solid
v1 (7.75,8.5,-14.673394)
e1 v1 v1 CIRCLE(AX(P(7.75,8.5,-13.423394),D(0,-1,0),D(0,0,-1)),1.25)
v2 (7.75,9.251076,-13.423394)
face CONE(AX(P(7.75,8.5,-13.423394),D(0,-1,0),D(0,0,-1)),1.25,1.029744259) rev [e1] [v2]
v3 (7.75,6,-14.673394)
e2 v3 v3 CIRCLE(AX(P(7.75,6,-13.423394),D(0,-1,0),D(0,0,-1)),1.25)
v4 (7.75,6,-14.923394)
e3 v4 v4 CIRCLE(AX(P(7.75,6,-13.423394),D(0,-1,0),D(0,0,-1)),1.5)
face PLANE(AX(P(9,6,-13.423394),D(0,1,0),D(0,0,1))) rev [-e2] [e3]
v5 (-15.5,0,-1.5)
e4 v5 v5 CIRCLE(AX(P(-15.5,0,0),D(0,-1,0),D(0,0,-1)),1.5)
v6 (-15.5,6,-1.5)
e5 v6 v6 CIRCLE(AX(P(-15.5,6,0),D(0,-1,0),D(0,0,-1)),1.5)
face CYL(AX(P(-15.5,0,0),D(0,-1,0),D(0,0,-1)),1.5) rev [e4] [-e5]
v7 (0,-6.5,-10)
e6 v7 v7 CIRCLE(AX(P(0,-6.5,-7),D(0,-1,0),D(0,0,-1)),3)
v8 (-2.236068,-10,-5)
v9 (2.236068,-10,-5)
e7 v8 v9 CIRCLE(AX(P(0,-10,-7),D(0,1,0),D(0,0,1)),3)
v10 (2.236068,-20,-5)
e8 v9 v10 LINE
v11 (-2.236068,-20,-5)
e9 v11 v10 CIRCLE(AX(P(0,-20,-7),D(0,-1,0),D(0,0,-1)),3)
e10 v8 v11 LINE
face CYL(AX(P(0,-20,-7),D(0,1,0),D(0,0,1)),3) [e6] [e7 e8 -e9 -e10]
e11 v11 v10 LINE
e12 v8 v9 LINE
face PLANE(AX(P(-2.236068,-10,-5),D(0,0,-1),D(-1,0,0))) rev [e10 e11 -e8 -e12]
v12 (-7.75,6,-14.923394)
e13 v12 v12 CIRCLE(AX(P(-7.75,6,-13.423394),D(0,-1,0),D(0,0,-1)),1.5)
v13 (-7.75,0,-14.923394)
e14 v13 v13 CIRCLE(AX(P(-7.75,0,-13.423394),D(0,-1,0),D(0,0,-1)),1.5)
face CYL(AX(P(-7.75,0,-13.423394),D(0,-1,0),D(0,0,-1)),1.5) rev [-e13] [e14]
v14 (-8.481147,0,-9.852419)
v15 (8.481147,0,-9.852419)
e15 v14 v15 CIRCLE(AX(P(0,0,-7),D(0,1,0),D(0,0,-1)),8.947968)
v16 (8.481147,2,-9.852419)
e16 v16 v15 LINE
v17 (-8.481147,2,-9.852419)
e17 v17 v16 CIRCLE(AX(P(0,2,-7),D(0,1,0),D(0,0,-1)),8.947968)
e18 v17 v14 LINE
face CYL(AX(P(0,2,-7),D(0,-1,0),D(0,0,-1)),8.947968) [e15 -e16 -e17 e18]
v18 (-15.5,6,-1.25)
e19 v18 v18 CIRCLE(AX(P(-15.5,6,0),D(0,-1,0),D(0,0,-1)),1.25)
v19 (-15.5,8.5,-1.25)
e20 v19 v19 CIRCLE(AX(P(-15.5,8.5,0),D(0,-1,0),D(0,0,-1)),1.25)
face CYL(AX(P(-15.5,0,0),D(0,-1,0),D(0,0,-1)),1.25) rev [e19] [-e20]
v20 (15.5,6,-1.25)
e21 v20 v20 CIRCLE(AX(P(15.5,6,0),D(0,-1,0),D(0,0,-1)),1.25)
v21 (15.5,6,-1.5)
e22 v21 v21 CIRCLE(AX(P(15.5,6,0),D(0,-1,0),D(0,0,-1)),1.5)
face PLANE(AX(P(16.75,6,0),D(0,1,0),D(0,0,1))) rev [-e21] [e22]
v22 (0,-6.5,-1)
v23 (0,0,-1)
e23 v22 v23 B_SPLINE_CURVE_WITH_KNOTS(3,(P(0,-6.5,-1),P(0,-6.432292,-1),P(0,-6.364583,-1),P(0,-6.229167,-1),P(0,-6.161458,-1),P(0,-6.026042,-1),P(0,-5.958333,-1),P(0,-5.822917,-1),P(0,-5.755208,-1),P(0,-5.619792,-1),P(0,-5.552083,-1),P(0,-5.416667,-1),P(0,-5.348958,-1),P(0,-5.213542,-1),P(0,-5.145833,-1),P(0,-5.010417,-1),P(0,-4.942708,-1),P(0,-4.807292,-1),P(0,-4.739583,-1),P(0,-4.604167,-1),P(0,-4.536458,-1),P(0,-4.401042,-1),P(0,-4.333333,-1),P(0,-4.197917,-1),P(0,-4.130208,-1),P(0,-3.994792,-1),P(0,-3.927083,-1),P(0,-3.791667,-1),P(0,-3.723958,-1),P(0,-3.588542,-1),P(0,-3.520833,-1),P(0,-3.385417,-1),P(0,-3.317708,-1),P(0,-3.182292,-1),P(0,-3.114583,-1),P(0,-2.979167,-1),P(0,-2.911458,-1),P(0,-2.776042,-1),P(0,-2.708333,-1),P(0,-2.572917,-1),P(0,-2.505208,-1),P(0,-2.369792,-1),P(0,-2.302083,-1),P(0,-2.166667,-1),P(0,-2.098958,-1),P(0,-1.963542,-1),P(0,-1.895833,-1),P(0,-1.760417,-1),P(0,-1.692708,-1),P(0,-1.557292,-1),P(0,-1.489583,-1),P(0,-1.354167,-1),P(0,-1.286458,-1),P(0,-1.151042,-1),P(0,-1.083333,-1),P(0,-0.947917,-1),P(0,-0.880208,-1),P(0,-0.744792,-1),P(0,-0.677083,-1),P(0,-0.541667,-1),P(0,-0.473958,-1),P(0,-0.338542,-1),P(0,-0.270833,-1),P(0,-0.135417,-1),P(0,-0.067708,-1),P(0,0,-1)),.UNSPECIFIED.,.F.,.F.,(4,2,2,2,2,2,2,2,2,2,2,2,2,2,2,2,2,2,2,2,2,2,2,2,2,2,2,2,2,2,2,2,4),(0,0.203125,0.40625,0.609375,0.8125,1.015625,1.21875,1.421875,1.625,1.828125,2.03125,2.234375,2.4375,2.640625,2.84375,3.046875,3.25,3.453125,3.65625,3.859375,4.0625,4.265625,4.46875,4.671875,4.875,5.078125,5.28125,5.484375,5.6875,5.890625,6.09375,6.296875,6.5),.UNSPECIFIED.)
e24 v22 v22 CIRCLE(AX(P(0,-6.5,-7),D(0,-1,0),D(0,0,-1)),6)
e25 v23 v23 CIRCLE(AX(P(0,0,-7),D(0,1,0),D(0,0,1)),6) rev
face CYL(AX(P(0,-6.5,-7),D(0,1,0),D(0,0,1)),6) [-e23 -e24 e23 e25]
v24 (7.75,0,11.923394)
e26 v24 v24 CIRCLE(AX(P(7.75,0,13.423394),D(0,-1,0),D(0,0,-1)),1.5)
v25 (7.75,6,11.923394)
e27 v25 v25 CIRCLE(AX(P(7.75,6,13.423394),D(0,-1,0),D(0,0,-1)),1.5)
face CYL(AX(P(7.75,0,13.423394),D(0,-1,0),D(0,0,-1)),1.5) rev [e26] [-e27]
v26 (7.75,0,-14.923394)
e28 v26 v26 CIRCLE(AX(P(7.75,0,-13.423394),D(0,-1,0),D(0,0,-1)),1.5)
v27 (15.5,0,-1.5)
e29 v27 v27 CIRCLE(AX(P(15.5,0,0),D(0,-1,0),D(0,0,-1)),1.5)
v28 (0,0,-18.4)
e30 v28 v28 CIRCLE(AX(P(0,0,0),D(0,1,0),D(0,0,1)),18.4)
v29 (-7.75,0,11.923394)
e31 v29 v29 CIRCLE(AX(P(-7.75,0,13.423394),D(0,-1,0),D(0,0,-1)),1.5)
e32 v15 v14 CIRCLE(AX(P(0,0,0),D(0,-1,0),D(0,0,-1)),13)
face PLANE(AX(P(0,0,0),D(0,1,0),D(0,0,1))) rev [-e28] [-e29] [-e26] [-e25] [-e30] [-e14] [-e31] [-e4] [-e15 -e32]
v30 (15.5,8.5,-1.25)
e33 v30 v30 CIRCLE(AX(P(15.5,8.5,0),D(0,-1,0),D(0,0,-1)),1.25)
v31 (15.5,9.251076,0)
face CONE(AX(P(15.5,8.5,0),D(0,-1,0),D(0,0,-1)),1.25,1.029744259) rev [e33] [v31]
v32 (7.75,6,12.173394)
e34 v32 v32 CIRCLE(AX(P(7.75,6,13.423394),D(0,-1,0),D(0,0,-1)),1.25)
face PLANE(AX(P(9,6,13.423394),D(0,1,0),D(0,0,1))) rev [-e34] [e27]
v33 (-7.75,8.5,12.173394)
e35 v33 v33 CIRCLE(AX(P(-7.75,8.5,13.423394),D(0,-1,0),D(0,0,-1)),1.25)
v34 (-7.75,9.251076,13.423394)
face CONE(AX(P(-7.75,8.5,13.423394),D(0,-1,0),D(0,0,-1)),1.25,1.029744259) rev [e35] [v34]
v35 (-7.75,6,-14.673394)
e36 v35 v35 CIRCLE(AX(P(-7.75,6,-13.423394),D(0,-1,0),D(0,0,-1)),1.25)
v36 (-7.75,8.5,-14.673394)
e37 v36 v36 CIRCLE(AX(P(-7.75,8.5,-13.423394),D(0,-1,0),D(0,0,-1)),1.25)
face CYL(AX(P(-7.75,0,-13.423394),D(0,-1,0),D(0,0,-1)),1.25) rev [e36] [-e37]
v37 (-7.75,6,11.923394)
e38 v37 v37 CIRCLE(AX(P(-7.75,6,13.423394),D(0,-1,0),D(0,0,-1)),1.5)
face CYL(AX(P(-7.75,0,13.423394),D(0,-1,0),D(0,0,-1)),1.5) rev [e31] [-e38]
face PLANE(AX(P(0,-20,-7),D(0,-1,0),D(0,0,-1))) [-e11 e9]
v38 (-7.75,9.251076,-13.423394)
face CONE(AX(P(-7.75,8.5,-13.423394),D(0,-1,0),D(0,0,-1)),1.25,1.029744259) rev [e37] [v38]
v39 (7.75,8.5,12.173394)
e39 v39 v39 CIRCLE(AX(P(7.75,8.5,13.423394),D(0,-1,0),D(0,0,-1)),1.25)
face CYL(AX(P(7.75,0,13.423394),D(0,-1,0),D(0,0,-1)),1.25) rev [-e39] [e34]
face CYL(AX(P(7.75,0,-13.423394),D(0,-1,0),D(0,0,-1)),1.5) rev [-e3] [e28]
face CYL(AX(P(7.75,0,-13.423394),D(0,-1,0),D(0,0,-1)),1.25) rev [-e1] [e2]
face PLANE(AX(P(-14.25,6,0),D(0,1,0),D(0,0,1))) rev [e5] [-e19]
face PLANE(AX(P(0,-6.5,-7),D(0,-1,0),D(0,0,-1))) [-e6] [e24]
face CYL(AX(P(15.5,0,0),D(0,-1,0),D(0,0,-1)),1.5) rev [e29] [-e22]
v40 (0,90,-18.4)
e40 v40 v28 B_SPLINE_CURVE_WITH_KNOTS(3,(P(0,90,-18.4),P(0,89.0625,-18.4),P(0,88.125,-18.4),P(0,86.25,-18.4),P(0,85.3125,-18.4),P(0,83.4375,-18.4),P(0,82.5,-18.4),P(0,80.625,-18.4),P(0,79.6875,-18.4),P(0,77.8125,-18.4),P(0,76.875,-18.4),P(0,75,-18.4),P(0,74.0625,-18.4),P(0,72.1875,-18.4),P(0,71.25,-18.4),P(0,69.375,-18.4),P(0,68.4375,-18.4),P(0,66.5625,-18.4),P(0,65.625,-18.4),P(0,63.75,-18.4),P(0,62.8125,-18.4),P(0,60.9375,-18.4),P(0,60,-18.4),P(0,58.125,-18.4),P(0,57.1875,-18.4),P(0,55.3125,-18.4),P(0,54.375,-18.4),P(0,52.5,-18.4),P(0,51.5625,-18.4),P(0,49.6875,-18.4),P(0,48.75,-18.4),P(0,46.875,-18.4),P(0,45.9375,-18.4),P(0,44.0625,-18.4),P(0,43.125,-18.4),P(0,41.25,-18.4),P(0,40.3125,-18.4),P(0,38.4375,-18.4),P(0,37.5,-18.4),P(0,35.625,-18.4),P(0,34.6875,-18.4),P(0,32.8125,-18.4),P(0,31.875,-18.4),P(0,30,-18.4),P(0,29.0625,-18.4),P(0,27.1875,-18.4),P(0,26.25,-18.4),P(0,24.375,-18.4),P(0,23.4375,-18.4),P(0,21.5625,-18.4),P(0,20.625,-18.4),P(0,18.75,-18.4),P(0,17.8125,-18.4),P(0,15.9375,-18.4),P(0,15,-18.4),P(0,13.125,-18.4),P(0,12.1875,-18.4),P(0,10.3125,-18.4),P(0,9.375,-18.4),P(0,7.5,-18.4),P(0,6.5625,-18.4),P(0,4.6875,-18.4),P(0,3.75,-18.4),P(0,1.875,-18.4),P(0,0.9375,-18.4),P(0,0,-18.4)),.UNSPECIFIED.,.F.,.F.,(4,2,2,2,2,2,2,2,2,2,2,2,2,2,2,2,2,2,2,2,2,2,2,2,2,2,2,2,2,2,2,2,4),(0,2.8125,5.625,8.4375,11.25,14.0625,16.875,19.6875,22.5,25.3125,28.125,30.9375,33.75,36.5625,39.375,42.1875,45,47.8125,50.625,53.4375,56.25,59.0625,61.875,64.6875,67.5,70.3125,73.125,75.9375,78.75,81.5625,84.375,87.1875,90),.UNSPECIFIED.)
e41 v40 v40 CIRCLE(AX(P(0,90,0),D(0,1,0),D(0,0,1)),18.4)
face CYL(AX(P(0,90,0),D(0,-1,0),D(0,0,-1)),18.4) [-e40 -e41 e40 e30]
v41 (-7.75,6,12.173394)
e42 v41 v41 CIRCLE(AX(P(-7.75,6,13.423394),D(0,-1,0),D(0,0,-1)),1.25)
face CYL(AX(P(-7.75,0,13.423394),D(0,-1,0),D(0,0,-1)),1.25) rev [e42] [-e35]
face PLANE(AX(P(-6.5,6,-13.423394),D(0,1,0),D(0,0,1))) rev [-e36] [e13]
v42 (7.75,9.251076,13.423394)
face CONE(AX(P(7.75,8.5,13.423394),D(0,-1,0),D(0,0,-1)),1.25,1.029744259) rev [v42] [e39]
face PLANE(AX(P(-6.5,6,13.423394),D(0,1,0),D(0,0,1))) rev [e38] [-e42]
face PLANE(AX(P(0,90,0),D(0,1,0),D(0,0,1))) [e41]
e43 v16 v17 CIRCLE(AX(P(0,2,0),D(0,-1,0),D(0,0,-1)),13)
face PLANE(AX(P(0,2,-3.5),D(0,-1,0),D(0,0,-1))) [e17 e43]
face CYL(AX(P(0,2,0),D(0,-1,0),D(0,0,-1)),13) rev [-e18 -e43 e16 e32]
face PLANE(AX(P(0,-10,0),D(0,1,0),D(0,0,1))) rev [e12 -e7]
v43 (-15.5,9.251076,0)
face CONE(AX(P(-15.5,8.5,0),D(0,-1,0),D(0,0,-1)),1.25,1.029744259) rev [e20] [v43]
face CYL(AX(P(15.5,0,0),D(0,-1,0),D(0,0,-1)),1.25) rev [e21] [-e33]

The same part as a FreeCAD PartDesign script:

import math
import FreeCAD as App
import Part
import Sketcher
Q = App.Units.Quantity


def add_polygon(sketch, points):
    """Adds a closed chain of lines whose ends are joined by coincident constraints."""
    first, n = sketch.GeometryCount, len(points)
    for a, b in zip(points, points[1:] + points[:1]):
        sketch.addGeometry(Part.LineSegment(App.Vector(*a, 0), App.Vector(*b, 0)), False)
    for i in range(n):
        sketch.addConstraint(Sketcher.Constraint("Coincident", first + i, 2, first + (i + 1) % n, 1))

doc = App.newDocument("Part")
body = doc.addObject("PartDesign::Body", "Body")

# Sketch on XZ plane
sketch1 = body.newObject("Sketcher::SketchObject", "Sketch")
sketch1.AttachmentSupport = (doc.getObject("XZ_Plane"), [""])
sketch1.MapMode = "FlatFace"
sketch1.addGeometry(Part.Circle(App.Vector(0, 0, 0), App.Vector(0, 0, 1), 18), False)
sketch1.addConstraint(Sketcher.Constraint("Coincident", 0, 3, -1, 1))
sketch1.addConstraint(Sketcher.Constraint("Diameter", 0, Q("36.8 mm")))
pad1 = body.newObject("PartDesign::Pad", "Pad")
pad1.Profile = sketch1
pad1.Length = 90
pad1.Reversed = True

# Sketch on XZ plane
sketch2 = body.newObject("Sketcher::SketchObject", "Sketch001")
sketch2.AttachmentSupport = (doc.getObject("XZ_Plane"), [""])
sketch2.MapMode = "FlatFace"
sketch2.addGeometry(Part.Circle(App.Vector(0, -7, 0), App.Vector(0, 0, 1), 3), False)
sketch2.addConstraint(Sketcher.Constraint("PointOnObject", 0, 3, -2))
sketch2.addConstraint(Sketcher.Constraint("Diameter", 0, Q("6 mm")))
sketch2.addConstraint(Sketcher.Constraint("DistanceY", 0, 3, -1, 1, Q("7 mm")))
pad2 = body.newObject("PartDesign::Pad", "Pad001")
pad2.Profile = sketch2
pad2.Length = 20

# Sketch on XZ plane
sketch3 = body.newObject("Sketcher::SketchObject", "Sketch002")
sketch3.AttachmentSupport = (doc.getObject("XZ_Plane"), [""])
sketch3.MapMode = "FlatFace"
sketch3.addGeometry(Part.Circle(App.Vector(7.8, 13.4, 0), App.Vector(0, 0, 1), 1.2), False)
sketch3.addGeometry(Part.Circle(App.Vector(15.5, 0, 0), App.Vector(0, 0, 1), 1.2), False)
sketch3.addGeometry(Part.Circle(App.Vector(7.8, -13.4, 0), App.Vector(0, 0, 1), 1.2), False)
sketch3.addGeometry(Part.Circle(App.Vector(-7.8, -13.4, 0), App.Vector(0, 0, 1), 1.2), False)
sketch3.addGeometry(Part.Circle(App.Vector(-15.5, 0, 0), App.Vector(0, 0, 1), 1.2), False)
sketch3.addGeometry(Part.Circle(App.Vector(-7.8, 13.4, 0), App.Vector(0, 0, 1), 1.2), False)
sketch3.addConstraint(Sketcher.Constraint("Equal", 0, 1))
sketch3.addConstraint(Sketcher.Constraint("Equal", 1, 2))
sketch3.addConstraint(Sketcher.Constraint("Equal", 2, 3))
sketch3.addConstraint(Sketcher.Constraint("Equal", 3, 4))
sketch3.addConstraint(Sketcher.Constraint("Equal", 4, 5))
sketch3.addConstraint(Sketcher.Constraint("Symmetric", 0, 3, 3, 3, -1, 1))
sketch3.addConstraint(Sketcher.Constraint("Symmetric", 1, 3, 4, 3, -1, 1))
sketch3.addConstraint(Sketcher.Constraint("Symmetric", 2, 3, 5, 3, -1, 1))
sketch3.addConstraint(Sketcher.Constraint("Symmetric", 2, 3, 3, 3, -2))
sketch3.addConstraint(Sketcher.Constraint("PointOnObject", 1, 3, -1))
sketch3.addConstraint(Sketcher.Constraint("Diameter", 0, Q("2.5 mm")))
sketch3.addConstraint(Sketcher.Constraint("DistanceX", 4, 3, 1, 3, Q("31 mm")))
sketch3.addConstraint(Sketcher.Constraint("DistanceX", 3, 3, 2, 3, Q("15.5 mm")))
sketch3.addConstraint(Sketcher.Constraint("DistanceY", -1, 1, 0, 3, Q("13.423394 mm")))
doc.recompute()
hole = body.newObject("PartDesign::Hole", "Hole")
hole.Profile = sketch3
hole.ThreadType = "None"
hole.Diameter = 2.5
hole.DepthType = "Dimension"
hole.Depth = 8.5
hole.DrillPoint = "Angled"
hole.DrillPointAngle = 118
hole.HoleCutType = "Counterbore"
hole.HoleCutDiameter = 3
hole.HoleCutDepth = 6

# Sketch on XZ plane
sketch4 = body.newObject("Sketcher::SketchObject", "Sketch003")
sketch4.AttachmentSupport = (doc.getObject("XZ_Plane"), [""])
sketch4.MapMode = "FlatFace"
sketch4.addGeometry(Part.Circle(App.Vector(0, -7, 0), App.Vector(0, 0, 1), 6), False)
sketch4.addConstraint(Sketcher.Constraint("PointOnObject", 0, 3, -2))
sketch4.addConstraint(Sketcher.Constraint("Diameter", 0, Q("12 mm")))
sketch4.addConstraint(Sketcher.Constraint("DistanceY", 0, 3, -1, 1, Q("7 mm")))
pad3 = body.newObject("PartDesign::Pad", "Pad002")
pad3.Profile = sketch4
pad3.Length = 6.5

# Sketch on XZ plane
sketch5 = body.newObject("Sketcher::SketchObject", "Sketch004")
sketch5.AttachmentSupport = (doc.getObject("XZ_Plane"), [""])
sketch5.MapMode = "FlatFace"
sketch5.addGeometry(Part.ArcOfCircle(Part.Circle(App.Vector(0, 0, 0), App.Vector(0, 0, 1), 13), math.radians(-49), math.radians(229)), False)
sketch5.addGeometry(Part.ArcOfCircle(Part.Circle(App.Vector(0, -7, 0), App.Vector(0, 0, 1), 9), math.radians(-19), math.radians(199)), False)
sketch5.addConstraint(Sketcher.Constraint("Coincident", 0, 1, 1, 1))
sketch5.addConstraint(Sketcher.Constraint("Coincident", 1, 2, 0, 2))
sketch5.addConstraint(Sketcher.Constraint("Coincident", 0, 3, -1, 1))
sketch5.addConstraint(Sketcher.Constraint("PointOnObject", 1, 3, -2))
sketch5.addConstraint(Sketcher.Constraint("Radius", 0, Q("13 mm")))
sketch5.addConstraint(Sketcher.Constraint("DistanceY", 1, 3, -1, 1, Q("7 mm")))
sketch5.addConstraint(Sketcher.Constraint("Radius", 1, Q("8.947968 mm")))
pocket1 = body.newObject("PartDesign::Pocket", "Pocket")
pocket1.Profile = sketch5
pocket1.Length = 2

# Sketch on XZ plane
sketch6 = body.newObject("Sketcher::SketchObject", "Sketch005")
sketch6.AttachmentSupport = (doc.getObject("XZ_Plane"), [""])
sketch6.MapMode = "FlatFace"
sketch6.AttachmentOffset = App.Placement(App.Vector(0, 0, 20), App.Rotation())
add_polygon(sketch6, [(-2.2, 5.2), (-2.2, -5), (2.2, -5), (2.2, 5.2)])  # lines 0-3
sketch6.addConstraint(Sketcher.Constraint("Vertical", 0))
sketch6.addConstraint(Sketcher.Constraint("Horizontal", 1))
sketch6.addConstraint(Sketcher.Constraint("Vertical", 2))
sketch6.addConstraint(Sketcher.Constraint("Horizontal", 3))
sketch6.addConstraint(Sketcher.Constraint("DistanceY", 0, 2, -1, 1, Q("5 mm")))
sketch6.addConstraint(Sketcher.Constraint("DistanceX", 1, 1, 1, 2, Q("4.472136 mm")))
sketch6.addConstraint(Sketcher.Constraint("DistanceY", 0, 2, 0, 1, Q("10.231682 mm")))
sketch6.addConstraint(Sketcher.Constraint("DistanceX", 0, 2, -1, 1, Q("2.236068 mm")))
pocket2 = body.newObject("PartDesign::Pocket", "Pocket001")
pocket2.Profile = sketch6
pocket2.Length = 10

doc.recompute()
